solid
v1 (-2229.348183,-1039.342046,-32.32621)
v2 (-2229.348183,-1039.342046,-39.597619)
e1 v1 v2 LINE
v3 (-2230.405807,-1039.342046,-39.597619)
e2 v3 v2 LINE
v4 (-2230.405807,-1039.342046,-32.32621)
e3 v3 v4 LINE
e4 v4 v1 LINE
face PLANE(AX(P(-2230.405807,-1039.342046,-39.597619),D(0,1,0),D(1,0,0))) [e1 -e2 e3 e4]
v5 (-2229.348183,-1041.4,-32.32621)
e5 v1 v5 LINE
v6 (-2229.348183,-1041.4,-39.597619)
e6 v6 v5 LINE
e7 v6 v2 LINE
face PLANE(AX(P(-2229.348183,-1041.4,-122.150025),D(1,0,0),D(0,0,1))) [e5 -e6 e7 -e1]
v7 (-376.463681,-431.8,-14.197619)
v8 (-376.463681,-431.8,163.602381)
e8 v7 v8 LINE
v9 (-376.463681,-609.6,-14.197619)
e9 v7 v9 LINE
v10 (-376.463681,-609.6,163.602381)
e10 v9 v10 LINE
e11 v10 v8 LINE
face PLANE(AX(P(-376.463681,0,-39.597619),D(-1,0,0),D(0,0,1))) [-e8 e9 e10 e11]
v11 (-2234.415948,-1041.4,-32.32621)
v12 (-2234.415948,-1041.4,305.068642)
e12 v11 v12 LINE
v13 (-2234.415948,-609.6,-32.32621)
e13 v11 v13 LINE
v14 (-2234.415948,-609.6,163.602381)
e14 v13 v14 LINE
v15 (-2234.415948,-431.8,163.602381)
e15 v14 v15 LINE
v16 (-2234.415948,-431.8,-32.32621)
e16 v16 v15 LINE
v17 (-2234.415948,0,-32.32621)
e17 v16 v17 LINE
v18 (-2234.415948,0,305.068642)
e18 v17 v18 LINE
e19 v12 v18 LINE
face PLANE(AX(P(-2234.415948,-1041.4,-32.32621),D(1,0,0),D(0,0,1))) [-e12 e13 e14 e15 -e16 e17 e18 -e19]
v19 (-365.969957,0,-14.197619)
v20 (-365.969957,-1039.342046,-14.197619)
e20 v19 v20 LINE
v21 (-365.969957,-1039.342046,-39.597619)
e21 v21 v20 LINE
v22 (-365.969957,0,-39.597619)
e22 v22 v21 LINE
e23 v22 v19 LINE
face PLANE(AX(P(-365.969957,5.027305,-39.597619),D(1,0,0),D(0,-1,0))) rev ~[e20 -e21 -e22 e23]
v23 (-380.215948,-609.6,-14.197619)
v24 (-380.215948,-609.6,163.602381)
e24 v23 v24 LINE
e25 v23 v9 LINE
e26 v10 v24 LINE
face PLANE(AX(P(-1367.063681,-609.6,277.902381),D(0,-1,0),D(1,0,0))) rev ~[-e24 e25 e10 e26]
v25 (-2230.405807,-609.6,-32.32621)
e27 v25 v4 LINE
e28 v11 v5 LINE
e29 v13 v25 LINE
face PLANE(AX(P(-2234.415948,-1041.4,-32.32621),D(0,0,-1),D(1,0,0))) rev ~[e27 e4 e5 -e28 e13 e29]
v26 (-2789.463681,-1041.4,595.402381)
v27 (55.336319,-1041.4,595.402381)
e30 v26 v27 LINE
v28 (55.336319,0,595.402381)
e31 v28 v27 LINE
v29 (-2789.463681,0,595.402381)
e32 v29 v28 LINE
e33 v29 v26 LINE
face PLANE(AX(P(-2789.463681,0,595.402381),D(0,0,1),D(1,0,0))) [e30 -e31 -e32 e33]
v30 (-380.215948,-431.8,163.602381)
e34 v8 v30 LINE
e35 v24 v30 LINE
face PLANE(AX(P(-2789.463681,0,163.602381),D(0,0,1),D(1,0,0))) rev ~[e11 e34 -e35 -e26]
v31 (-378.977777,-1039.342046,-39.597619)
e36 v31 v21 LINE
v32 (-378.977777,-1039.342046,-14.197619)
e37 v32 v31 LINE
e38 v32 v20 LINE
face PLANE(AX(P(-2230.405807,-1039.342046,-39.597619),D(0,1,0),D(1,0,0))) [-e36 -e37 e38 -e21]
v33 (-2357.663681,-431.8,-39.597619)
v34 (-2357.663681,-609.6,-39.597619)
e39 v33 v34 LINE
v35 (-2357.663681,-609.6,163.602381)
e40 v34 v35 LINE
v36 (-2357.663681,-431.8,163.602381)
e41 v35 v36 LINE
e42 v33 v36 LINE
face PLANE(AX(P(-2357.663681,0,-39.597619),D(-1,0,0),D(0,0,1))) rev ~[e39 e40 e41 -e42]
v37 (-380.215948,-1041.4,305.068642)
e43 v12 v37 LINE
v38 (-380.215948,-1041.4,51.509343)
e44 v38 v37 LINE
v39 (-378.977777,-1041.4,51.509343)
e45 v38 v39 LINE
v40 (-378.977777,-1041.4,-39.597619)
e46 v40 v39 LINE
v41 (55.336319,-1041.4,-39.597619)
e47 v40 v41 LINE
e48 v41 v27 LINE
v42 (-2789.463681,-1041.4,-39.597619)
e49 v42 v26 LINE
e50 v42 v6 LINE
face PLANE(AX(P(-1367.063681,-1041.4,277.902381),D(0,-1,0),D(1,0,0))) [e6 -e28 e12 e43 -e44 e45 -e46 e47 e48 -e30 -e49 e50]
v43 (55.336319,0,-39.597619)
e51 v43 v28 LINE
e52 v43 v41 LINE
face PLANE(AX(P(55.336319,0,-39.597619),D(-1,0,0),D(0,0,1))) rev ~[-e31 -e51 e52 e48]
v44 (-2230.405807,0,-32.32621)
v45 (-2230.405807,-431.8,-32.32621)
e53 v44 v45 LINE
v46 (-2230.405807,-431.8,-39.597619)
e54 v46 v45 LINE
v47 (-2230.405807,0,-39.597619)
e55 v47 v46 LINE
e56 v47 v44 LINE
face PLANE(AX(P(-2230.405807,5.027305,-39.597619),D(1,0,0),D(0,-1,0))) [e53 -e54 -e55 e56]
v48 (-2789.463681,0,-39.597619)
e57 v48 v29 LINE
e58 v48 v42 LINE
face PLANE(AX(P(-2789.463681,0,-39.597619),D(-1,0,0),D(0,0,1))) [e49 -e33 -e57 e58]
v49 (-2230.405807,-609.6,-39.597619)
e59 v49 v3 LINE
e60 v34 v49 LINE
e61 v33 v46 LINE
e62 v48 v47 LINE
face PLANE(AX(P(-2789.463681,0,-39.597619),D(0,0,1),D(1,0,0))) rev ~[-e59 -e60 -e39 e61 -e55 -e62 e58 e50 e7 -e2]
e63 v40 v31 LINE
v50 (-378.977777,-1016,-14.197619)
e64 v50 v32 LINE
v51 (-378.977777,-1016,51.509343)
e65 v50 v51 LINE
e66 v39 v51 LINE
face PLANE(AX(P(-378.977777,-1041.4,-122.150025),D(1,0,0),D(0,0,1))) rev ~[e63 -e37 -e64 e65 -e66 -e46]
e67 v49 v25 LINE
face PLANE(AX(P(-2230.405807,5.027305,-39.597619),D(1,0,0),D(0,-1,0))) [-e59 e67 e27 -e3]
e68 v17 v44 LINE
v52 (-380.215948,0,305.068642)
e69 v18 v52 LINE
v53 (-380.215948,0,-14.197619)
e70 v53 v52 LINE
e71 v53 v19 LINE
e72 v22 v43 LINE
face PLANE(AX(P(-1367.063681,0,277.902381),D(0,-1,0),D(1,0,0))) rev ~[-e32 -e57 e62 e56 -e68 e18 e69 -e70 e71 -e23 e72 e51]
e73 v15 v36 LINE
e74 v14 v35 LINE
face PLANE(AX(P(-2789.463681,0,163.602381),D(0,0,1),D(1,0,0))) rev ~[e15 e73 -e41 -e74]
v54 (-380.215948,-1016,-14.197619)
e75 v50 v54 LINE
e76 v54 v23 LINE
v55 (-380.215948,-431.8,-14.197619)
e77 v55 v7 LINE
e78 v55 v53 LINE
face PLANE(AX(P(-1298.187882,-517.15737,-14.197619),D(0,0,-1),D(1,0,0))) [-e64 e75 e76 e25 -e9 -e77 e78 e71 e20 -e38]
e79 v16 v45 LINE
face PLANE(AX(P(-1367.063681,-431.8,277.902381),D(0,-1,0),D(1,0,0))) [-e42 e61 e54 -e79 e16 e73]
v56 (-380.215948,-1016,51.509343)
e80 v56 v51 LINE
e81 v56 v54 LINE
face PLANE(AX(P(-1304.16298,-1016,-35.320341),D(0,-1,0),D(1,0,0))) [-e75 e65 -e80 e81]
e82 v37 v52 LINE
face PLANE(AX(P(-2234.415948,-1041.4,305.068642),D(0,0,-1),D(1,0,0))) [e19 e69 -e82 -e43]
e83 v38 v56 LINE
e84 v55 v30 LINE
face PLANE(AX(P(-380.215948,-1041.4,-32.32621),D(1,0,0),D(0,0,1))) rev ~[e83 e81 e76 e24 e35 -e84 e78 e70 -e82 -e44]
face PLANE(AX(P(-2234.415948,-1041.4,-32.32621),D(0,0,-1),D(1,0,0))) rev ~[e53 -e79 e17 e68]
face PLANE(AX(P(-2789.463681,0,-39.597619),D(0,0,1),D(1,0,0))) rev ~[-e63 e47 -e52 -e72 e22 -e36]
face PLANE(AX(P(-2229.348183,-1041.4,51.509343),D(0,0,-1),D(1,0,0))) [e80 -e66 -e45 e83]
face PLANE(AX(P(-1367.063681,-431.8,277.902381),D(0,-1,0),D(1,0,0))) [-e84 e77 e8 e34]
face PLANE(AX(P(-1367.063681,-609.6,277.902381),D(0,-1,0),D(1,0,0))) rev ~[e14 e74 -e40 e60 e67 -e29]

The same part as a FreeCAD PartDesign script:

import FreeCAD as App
import Part
import Sketcher

V = App.Vector
Q = App.Units.Quantity


def faces_at(feature, points):
    """Names of the faces that lie closest to the given points."""
    faces = feature.Shape.Faces
    near = lambda p: min(range(len(faces)), key=lambda i: faces[i].distToShape(Part.Vertex(*p))[0])
    return sorted({f"Face{near(p) + 1}" for p in points})


def add_polygon(sketch, points):
    """Adds a closed chain of lines whose ends are joined by coincident constraints."""
    first, n = sketch.GeometryCount, len(points)
    for a, b in zip(points, points[1:] + points[:1]):
        sketch.addGeometry(Part.LineSegment(App.Vector(*a, 0), App.Vector(*b, 0)), False)
    for i in range(n):
        sketch.addConstraint(Sketcher.Constraint("Coincident", first + i, 2, first + (i + 1) % n, 1))

doc = App.newDocument("Part")
params = doc.addObject("Spreadsheet::Sheet", "Params")
for row, (alias, value) in enumerate([
    ("sketch1_width", "112 in"),
    ("sketch1_height", "25 in"),
    ("pad1_length", "41 in"),
    ("thickness_wall", "17 in"),
    ("sketch2_width", "73 in"),
    ("pocket1_length", "41 in"),
    ("pocket2_length", "1 in"),
    ("pocket3_length", "1 in"),
], start=1):
    params.set(f"A{row}", alias)
    params.set(f"B{row}", "=" + value)
    params.setAlias(f"B{row}", alias)

body = doc.addObject("PartDesign::Body", "Body")

# Sketch on XZ plane
sketch1 = doc.addObject("Sketcher::SketchObject", "Sketch")
body.addObject(sketch1)
sketch1.AttachmentSupport = (doc.XZ_Plane, [""])
sketch1.MapMode = "FlatFace"
add_polygon(sketch1, [(-2789.463681, 595.402381), (-2789.463681, -39.597619), (55.336319, -39.597619), (55.336319, 595.402381)])  # lines 0-3
sketch1.addConstraint(Sketcher.Constraint("Vertical", 0))
sketch1.addConstraint(Sketcher.Constraint("Horizontal", 1))
sketch1.addConstraint(Sketcher.Constraint("Vertical", 2))
sketch1.addConstraint(Sketcher.Constraint("Horizontal", 3))
sketch1.addConstraint(Sketcher.Constraint("DistanceX", 1, 1, 1, 2, Q("112 in")))
sketch1.addConstraint(Sketcher.Constraint("DistanceY", 0, 2, 0, 1, Q("25 in")))
sketch1.addConstraint(Sketcher.Constraint("DistanceX", 0, 2, -1, 1, 2789.463681))
sketch1.addConstraint(Sketcher.Constraint("DistanceY", 0, 2, -1, 1, 39.597619))
sketch1.setExpression("Constraints[8]", "Params.sketch1_width")
sketch1.setExpression("Constraints[9]", "Params.sketch1_height")
pad1 = doc.addObject("PartDesign::Pad", "Pad")
body.addObject(pad1)
pad1.Profile = sketch1
pad1.setExpression("Length", "Params.pad1_length")
doc.recompute()

thickness = doc.addObject("PartDesign::Thickness", "Thickness")
body.addObject(thickness)
thickness.Base = (pad1, faces_at(pad1, [(-1367.064, -520.7, -39.598)]))
thickness.setExpression("Value", "Params.thickness_wall")
thickness.Reversed = True
thickness.Join = "Arc"

# Sketch on XZ plane
sketch2 = doc.addObject("Sketcher::SketchObject", "Sketch001")
body.addObject(sketch2)
sketch2.AttachmentSupport = (doc.XZ_Plane, [""])
sketch2.MapMode = "FlatFace"
sketch2.AttachmentOffset = App.Placement(V(0, 0, 41 * 25.4), App.Rotation())
add_polygon(sketch2, [(-2234.415948, 305.068642), (-2234.415948, -32.32621), (-380.215948, -32.32621), (-380.215948, 305.068642)])  # lines 0-3
sketch2.addConstraint(Sketcher.Constraint("Vertical", 0))
sketch2.addConstraint(Sketcher.Constraint("Horizontal", 1))
sketch2.addConstraint(Sketcher.Constraint("Vertical", 2))
sketch2.addConstraint(Sketcher.Constraint("Horizontal", 3))
sketch2.addConstraint(Sketcher.Constraint("DistanceX", 1, 1, 1, 2, Q("73 in")))
sketch2.addConstraint(Sketcher.Constraint("DistanceY", 0, 2, 0, 1, 337.394852))
sketch2.addConstraint(Sketcher.Constraint("DistanceY", 0, 2, -1, 1, 32.32621))
sketch2.addConstraint(Sketcher.Constraint("DistanceX", 1, 2, -1, 1, 380.215948))
sketch2.setExpression("Constraints[8]", "Params.sketch2_width")
pocket1 = doc.addObject("PartDesign::Pocket", "Pocket")
body.addObject(pocket1)
pocket1.Profile = sketch2
pocket1.setExpression("Length", "Params.pocket1_length")

# Sketch on XY plane
sketch3 = doc.addObject("Sketcher::SketchObject", "Sketch002")
body.addObject(sketch3)
sketch3.AttachmentSupport = (doc.XY_Plane, [""])
sketch3.MapMode = "FlatFace"
sketch3.AttachmentOffset = App.Placement(V(0, 0, -39.597619), App.Rotation())
add_polygon(sketch3, [(-2230.405807, -1039.342046), (-2230.405807, 5.027305), (-365.969957, 5.027305), (-365.969957, -1039.342046)])  # lines 0-3
sketch3.addConstraint(Sketcher.Constraint("Vertical", 0))
sketch3.addConstraint(Sketcher.Constraint("Horizontal", 1))
sketch3.addConstraint(Sketcher.Constraint("Vertical", 2))
sketch3.addConstraint(Sketcher.Constraint("Horizontal", 3))
sketch3.addConstraint(Sketcher.Constraint("DistanceX", 1, 1, 1, 2, 1864.435851))
sketch3.addConstraint(Sketcher.Constraint("DistanceY", 0, 1, 0, 2, 1044.369351))
sketch3.addConstraint(Sketcher.Constraint("DistanceX", 0, 2, -1, 1, 2230.405807))
sketch3.addConstraint(Sketcher.Constraint("DistanceY", -1, 1, 0, 2, 5.027305))
pocket2 = doc.addObject("PartDesign::Pocket", "Pocket001")
body.addObject(pocket2)
pocket2.Profile = sketch3
pocket2.setExpression("Length", "Params.pocket2_length")
pocket2.Reversed = True

# Sketch on XZ plane
sketch4 = doc.addObject("Sketcher::SketchObject", "Sketch003")
body.addObject(sketch4)
sketch4.AttachmentSupport = (doc.XZ_Plane, [""])
sketch4.MapMode = "FlatFace"
sketch4.AttachmentOffset = App.Placement(V(0, 0, 41 * 25.4), App.Rotation())
add_polygon(sketch4, [(-2229.348183, 51.509343), (-2229.348183, -122.150025), (-378.977777, -122.150025), (-378.977777, 51.509343)])  # lines 0-3
sketch4.addConstraint(Sketcher.Constraint("Vertical", 0))
sketch4.addConstraint(Sketcher.Constraint("Horizontal", 1))
sketch4.addConstraint(Sketcher.Constraint("Vertical", 2))
sketch4.addConstraint(Sketcher.Constraint("Horizontal", 3))
sketch4.addConstraint(Sketcher.Constraint("DistanceY", 0, 2, 0, 1, 173.659369))
sketch4.addConstraint(Sketcher.Constraint("DistanceX", 1, 1, 1, 2, 1850.370407))
sketch4.addConstraint(Sketcher.Constraint("DistanceX", 0, 2, -1, 1, 2229.348183))
sketch4.addConstraint(Sketcher.Constraint("DistanceY", 0, 2, -1, 1, 122.150025))
pocket3 = doc.addObject("PartDesign::Pocket", "Pocket002")
body.addObject(pocket3)
pocket3.Profile = sketch4
pocket3.setExpression("Length", "Params.pocket3_length")

doc.recompute()
